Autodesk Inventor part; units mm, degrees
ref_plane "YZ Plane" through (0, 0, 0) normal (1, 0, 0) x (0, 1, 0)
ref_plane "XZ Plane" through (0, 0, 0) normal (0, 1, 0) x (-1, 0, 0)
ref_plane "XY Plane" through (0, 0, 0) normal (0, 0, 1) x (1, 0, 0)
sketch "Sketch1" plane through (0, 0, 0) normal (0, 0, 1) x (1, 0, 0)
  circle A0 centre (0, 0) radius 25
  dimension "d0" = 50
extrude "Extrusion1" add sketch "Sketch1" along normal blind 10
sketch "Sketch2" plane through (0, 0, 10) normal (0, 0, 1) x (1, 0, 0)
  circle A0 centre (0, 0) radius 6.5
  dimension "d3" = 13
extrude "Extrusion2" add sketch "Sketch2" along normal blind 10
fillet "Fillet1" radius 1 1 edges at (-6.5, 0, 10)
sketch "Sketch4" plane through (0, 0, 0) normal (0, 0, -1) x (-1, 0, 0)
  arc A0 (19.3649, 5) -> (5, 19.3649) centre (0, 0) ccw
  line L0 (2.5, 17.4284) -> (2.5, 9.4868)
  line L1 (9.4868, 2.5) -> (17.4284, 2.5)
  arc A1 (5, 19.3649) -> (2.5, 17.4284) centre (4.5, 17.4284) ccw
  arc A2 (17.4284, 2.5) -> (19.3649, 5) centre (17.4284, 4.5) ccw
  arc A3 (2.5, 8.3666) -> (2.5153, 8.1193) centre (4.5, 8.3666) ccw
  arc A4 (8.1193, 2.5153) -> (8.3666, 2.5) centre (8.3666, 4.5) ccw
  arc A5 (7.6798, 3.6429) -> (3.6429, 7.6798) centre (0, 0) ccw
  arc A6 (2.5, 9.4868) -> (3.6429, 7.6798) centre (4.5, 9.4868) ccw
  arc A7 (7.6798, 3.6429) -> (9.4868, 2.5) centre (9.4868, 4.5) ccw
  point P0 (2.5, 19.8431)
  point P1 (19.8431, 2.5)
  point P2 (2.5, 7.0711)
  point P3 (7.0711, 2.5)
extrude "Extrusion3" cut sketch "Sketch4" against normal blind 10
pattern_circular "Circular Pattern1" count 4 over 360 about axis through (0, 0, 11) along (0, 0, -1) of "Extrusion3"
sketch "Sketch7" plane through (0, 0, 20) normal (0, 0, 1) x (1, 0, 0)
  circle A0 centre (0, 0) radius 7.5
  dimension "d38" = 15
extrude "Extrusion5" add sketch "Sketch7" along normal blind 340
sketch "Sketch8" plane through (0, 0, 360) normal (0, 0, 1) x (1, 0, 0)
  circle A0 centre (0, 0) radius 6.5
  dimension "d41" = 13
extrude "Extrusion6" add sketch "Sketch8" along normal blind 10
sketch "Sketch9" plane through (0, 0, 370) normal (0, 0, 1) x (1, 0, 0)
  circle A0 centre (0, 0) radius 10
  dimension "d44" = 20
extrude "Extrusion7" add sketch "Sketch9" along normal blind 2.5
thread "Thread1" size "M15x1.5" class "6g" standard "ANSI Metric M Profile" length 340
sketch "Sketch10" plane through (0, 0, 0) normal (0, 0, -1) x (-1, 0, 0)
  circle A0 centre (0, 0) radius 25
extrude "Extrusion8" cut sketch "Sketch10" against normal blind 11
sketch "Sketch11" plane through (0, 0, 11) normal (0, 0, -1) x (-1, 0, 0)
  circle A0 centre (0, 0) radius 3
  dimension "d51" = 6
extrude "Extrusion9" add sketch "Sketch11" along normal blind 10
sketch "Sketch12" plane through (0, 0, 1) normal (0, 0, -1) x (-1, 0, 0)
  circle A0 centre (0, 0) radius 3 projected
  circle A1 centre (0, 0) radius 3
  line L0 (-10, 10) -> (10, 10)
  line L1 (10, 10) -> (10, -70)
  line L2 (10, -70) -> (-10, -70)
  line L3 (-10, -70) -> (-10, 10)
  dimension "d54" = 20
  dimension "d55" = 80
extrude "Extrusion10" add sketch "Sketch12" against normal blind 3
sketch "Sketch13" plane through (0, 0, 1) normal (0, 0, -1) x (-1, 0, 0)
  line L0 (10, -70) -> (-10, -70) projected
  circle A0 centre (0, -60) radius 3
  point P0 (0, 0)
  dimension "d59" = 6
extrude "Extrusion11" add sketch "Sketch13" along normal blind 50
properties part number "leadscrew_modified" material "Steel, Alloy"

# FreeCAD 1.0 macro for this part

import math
import FreeCAD as App
import Part
import Sketcher


def edges_at(feature, points):
    """Names of the edges that pass closest to the given points."""
    edges = feature.Shape.Edges
    near = lambda p: min(range(len(edges)), key=lambda i: edges[i].distToShape(Part.Vertex(*p))[0])
    return sorted({f"Edge{near(p) + 1}" for p in points})

doc = App.newDocument("Part")
body = doc.addObject("PartDesign::Body", "Body")

# Sketch on XY plane
sketch1 = doc.addObject("Sketcher::SketchObject", "Sketch")
body.addObject(sketch1)
sketch1.AttachmentSupport = (doc.XY_Plane, [""])
sketch1.MapMode = "FlatFace"
sketch1.addGeometry(Part.Circle(App.Vector(0, 0, 0), App.Vector(0, 0, 1), 25), False)
sketch1.addConstraint(Sketcher.Constraint("Coincident", 0, 3, -1, 1))
sketch1.addConstraint(Sketcher.Constraint("Diameter", 0, 50.0))
pad1 = doc.addObject("PartDesign::Pad", "Pad")
body.addObject(pad1)
pad1.Profile = sketch1
pad1.Length = 10

# Sketch on XY plane
sketch2 = doc.addObject("Sketcher::SketchObject", "Sketch001")
body.addObject(sketch2)
sketch2.AttachmentSupport = (doc.XY_Plane, [""])
sketch2.MapMode = "FlatFace"
sketch2.AttachmentOffset = App.Placement(App.Vector(0, 0, 10), App.Rotation())
sketch2.addGeometry(Part.Circle(App.Vector(0, 0, 0), App.Vector(0, 0, 1), 6), False)
sketch2.addConstraint(Sketcher.Constraint("Coincident", 0, 3, -1, 1))
sketch2.addConstraint(Sketcher.Constraint("Diameter", 0, 13.0))
pad2 = doc.addObject("PartDesign::Pad", "Pad001")
body.addObject(pad2)
pad2.Profile = sketch2
pad2.Length = 10
doc.recompute()

fillet = doc.addObject("PartDesign::Fillet", "Fillet")
body.addObject(fillet)
fillet.Base = (pad2, edges_at(pad2, [(-6.5, 0, 10)]))
fillet.Radius = 1

# Sketch on XY plane
sketch3 = doc.addObject("Sketcher::SketchObject", "Sketch002")
body.addObject(sketch3)
sketch3.AttachmentSupport = (doc.XY_Plane, [""])
sketch3.MapMode = "FlatFace"
sketch3.addGeometry(Part.ArcOfCircle(Part.Circle(App.Vector(-17.4, 4.5, 0), App.Vector(0, 0, 1), 2), math.radians(166), math.radians(270)), False)
sketch3.addGeometry(Part.ArcOfCircle(Part.Circle(App.Vector(0, 0, 0), App.Vector(0, 0, 1), 20), math.radians(104), math.radians(166)), False)
sketch3.addGeometry(Part.ArcOfCircle(Part.Circle(App.Vector(-4.5, 17.4, 0), App.Vector(0, 0, 1), 2), math.radians(0), math.radians(104)), False)
sketch3.addGeometry(Part.LineSegment(App.Vector(-2.5, 17.4, 0), App.Vector(-2.5, 9.5, 0)), False)
sketch3.addGeometry(Part.ArcOfCircle(Part.Circle(App.Vector(-4.5, 9.5, 0), App.Vector(0, 0, 1), 2), math.radians(-65), math.radians(0)), False)
sketch3.addGeometry(Part.ArcOfCircle(Part.Circle(App.Vector(0, 0, 0), App.Vector(0, 0, 1), 8.5), math.radians(115), math.radians(155)), False)
sketch3.addGeometry(Part.ArcOfCircle(Part.Circle(App.Vector(-9.5, 4.5, 0), App.Vector(0, 0, 1), 2), math.radians(-90), math.radians(-25)), False)
sketch3.addGeometry(Part.LineSegment(App.Vector(-9.5, 2.5, 0), App.Vector(-17.4, 2.5, 0)), False)
sketch3.addConstraint(Sketcher.Constraint("Tangent", 0, 1, 1, 2))
sketch3.addConstraint(Sketcher.Constraint("Tangent", 1, 1, 2, 2))
sketch3.addConstraint(Sketcher.Constraint("Tangent", 2, 1, 3, 1))
sketch3.addConstraint(Sketcher.Constraint("Tangent", 3, 2, 4, 2))
sketch3.addConstraint(Sketcher.Constraint("Tangent", 4, 1, 5, 1))
sketch3.addConstraint(Sketcher.Constraint("Tangent", 5, 2, 6, 2))
sketch3.addConstraint(Sketcher.Constraint("Tangent", 6, 1, 7, 1))
sketch3.addConstraint(Sketcher.Constraint("Tangent", 7, 2, 0, 2))
sketch3.addConstraint(Sketcher.Constraint("Vertical", 3))
sketch3.addConstraint(Sketcher.Constraint("Horizontal", 7))
sketch3.addConstraint(Sketcher.Constraint("Coincident", 1, 3, -1, 1))
sketch3.addConstraint(Sketcher.Constraint("Coincident", 5, 3, -1, 1))
sketch3.addConstraint(Sketcher.Constraint("Equal", 0, 2))
sketch3.addConstraint(Sketcher.Constraint("Equal", 2, 4))
sketch3.addConstraint(Sketcher.Constraint("Equal", 4, 6))
sketch3.addConstraint(Sketcher.Constraint("Equal", 7, 3))
sketch3.addConstraint(Sketcher.Constraint("Radius", 0, 2.0))
sketch3.addConstraint(Sketcher.Constraint("Radius", 1, 20.0))
sketch3.addConstraint(Sketcher.Constraint("Radius", 5, 8.5))
sketch3.addConstraint(Sketcher.Constraint("DistanceY", -1, 1, 0, 1, 5.0))
pocket1 = doc.addObject("PartDesign::Pocket", "Pocket")
body.addObject(pocket1)
pocket1.Profile = sketch3
pocket1.Length = 10
pocket1.Reversed = True
doc.recompute()

polarpattern = doc.addObject("PartDesign::PolarPattern", "PolarPattern")
body.addObject(polarpattern)
polarpattern.Originals = [pocket1]
polarpattern.Axis = (doc.Z_Axis, [""])
polarpattern.Angle = 360
polarpattern.Occurrences = 4
body.Tip = polarpattern

# Sketch on XY plane
sketch4 = doc.addObject("Sketcher::SketchObject", "Sketch003")
body.addObject(sketch4)
sketch4.AttachmentSupport = (doc.XY_Plane, [""])
sketch4.MapMode = "FlatFace"
sketch4.AttachmentOffset = App.Placement(App.Vector(0, 0, 20), App.Rotation())
sketch4.addGeometry(Part.Circle(App.Vector(0, 0, 0), App.Vector(0, 0, 1), 8), False)
sketch4.addConstraint(Sketcher.Constraint("Coincident", 0, 3, -1, 1))
sketch4.addConstraint(Sketcher.Constraint("Diameter", 0, 15.0))
pad3 = doc.addObject("PartDesign::Pad", "Pad002")
body.addObject(pad3)
pad3.Profile = sketch4
pad3.Length = 340

# Sketch on XY plane
sketch5 = doc.addObject("Sketcher::SketchObject", "Sketch004")
body.addObject(sketch5)
sketch5.AttachmentSupport = (doc.XY_Plane, [""])
sketch5.MapMode = "FlatFace"
sketch5.AttachmentOffset = App.Placement(App.Vector(0, 0, 360), App.Rotation())
sketch5.addGeometry(Part.Circle(App.Vector(0, 0, 0), App.Vector(0, 0, 1), 6), False)
sketch5.addConstraint(Sketcher.Constraint("Coincident", 0, 3, -1, 1))
sketch5.addConstraint(Sketcher.Constraint("Diameter", 0, 13.0))
pad4 = doc.addObject("PartDesign::Pad", "Pad003")
body.addObject(pad4)
pad4.Profile = sketch5
pad4.Length = 10

# Sketch on XY plane
sketch6 = doc.addObject("Sketcher::SketchObject", "Sketch005")
body.addObject(sketch6)
sketch6.AttachmentSupport = (doc.XY_Plane, [""])
sketch6.MapMode = "FlatFace"
sketch6.AttachmentOffset = App.Placement(App.Vector(0, 0, 370), App.Rotation())
sketch6.addGeometry(Part.Circle(App.Vector(0, 0, 0), App.Vector(0, 0, 1), 10), False)
sketch6.addConstraint(Sketcher.Constraint("Coincident", 0, 3, -1, 1))
sketch6.addConstraint(Sketcher.Constraint("Diameter", 0, 20.0))
pad5 = doc.addObject("PartDesign::Pad", "Pad004")
body.addObject(pad5)
pad5.Profile = sketch6
pad5.Length = 2.5

# Sketch on XY plane
sketch7 = doc.addObject("Sketcher::SketchObject", "Sketch006")
body.addObject(sketch7)
sketch7.AttachmentSupport = (doc.XY_Plane, [""])
sketch7.MapMode = "FlatFace"
sketch7.addGeometry(Part.Circle(App.Vector(0, 0, 0), App.Vector(0, 0, 1), 25), False)
sketch7.addConstraint(Sketcher.Constraint("Coincident", 0, 3, -1, 1))
sketch7.addConstraint(Sketcher.Constraint("Diameter", 0, 50.0))
pocket2 = doc.addObject("PartDesign::Pocket", "Pocket001")
body.addObject(pocket2)
pocket2.Profile = sketch7
pocket2.Length = 11
pocket2.Reversed = True

# Sketch on XY plane
sketch8 = doc.addObject("Sketcher::SketchObject", "Sketch007")
body.addObject(sketch8)
sketch8.AttachmentSupport = (doc.XY_Plane, [""])
sketch8.MapMode = "FlatFace"
sketch8.AttachmentOffset = App.Placement(App.Vector(0, 0, 11), App.Rotation())
sketch8.addGeometry(Part.Circle(App.Vector(0, 0, 0), App.Vector(0, 0, 1), 3), False)
sketch8.addConstraint(Sketcher.Constraint("Coincident", 0, 3, -1, 1))
sketch8.addConstraint(Sketcher.Constraint("Diameter", 0, 6.0))
pad6 = doc.addObject("PartDesign::Pad", "Pad005")
body.addObject(pad6)
pad6.Profile = sketch8
pad6.Length = 10
pad6.Reversed = True

# Sketch on XY plane
sketch9 = doc.addObject("Sketcher::SketchObject", "Sketch008")
body.addObject(sketch9)
sketch9.AttachmentSupport = (doc.XY_Plane, [""])
sketch9.MapMode = "FlatFace"
sketch9.AttachmentOffset = App.Placement(App.Vector(0, 0, 1), App.Rotation())
sketch9.addGeometry(Part.LineSegment(App.Vector(-10, 10, 0), App.Vector(10, 10, 0)), False)
sketch9.addGeometry(Part.LineSegment(App.Vector(10, 10, 0), App.Vector(10, -70, 0)), False)
sketch9.addGeometry(Part.LineSegment(App.Vector(10, -70, 0), App.Vector(-10, -70, 0)), False)
sketch9.addGeometry(Part.LineSegment(App.Vector(-10, -70, 0), App.Vector(-10, 10, 0)), False)
sketch9.addGeometry(Part.Circle(App.Vector(0, 0, 0), App.Vector(0, 0, 1), 3), False)
sketch9.addConstraint(Sketcher.Constraint("Coincident", 0, 2, 1, 1))
sketch9.addConstraint(Sketcher.Constraint("Coincident", 1, 2, 2, 1))
sketch9.addConstraint(Sketcher.Constraint("Coincident", 2, 2, 3, 1))
sketch9.addConstraint(Sketcher.Constraint("Coincident", 3, 2, 0, 1))
sketch9.addConstraint(Sketcher.Constraint("Horizontal", 0))
sketch9.addConstraint(Sketcher.Constraint("Vertical", 1))
sketch9.addConstraint(Sketcher.Constraint("Horizontal", 2))
sketch9.addConstraint(Sketcher.Constraint("Vertical", 3))
sketch9.addConstraint(Sketcher.Constraint("Coincident", 4, 3, -1, 1))
sketch9.addConstraint(Sketcher.Constraint("DistanceX", 0, 1, 0, 2, 20.0))
sketch9.addConstraint(Sketcher.Constraint("DistanceY", 1, 2, 1, 1, 80.0))
sketch9.addConstraint(Sketcher.Constraint("Diameter", 4, 6.0))
sketch9.addConstraint(Sketcher.Constraint("DistanceX", -1, 1, 0, 2, 10.0))
sketch9.addConstraint(Sketcher.Constraint("DistanceY", -1, 1, 0, 2, 10.0))
pad7 = doc.addObject("PartDesign::Pad", "Pad006")
body.addObject(pad7)
pad7.Profile = sketch9
pad7.Length = 3

# Sketch on XY plane
sketch10 = doc.addObject("Sketcher::SketchObject", "Sketch009")
body.addObject(sketch10)
sketch10.AttachmentSupport = (doc.XY_Plane, [""])
sketch10.MapMode = "FlatFace"
sketch10.AttachmentOffset = App.Placement(App.Vector(0, 0, 1), App.Rotation())
sketch10.addGeometry(Part.Circle(App.Vector(0, -60, 0), App.Vector(0, 0, 1), 3), False)
sketch10.addConstraint(Sketcher.Constraint("PointOnObject", 0, 3, -2))
sketch10.addConstraint(Sketcher.Constraint("Diameter", 0, 6.0))
sketch10.addConstraint(Sketcher.Constraint("DistanceY", 0, 3, -1, 1, 60.0))
pad8 = doc.addObject("PartDesign::Pad", "Pad007")
body.addObject(pad8)
pad8.Profile = sketch10
pad8.Length = 50
pad8.Reversed = True

doc.recompute()
